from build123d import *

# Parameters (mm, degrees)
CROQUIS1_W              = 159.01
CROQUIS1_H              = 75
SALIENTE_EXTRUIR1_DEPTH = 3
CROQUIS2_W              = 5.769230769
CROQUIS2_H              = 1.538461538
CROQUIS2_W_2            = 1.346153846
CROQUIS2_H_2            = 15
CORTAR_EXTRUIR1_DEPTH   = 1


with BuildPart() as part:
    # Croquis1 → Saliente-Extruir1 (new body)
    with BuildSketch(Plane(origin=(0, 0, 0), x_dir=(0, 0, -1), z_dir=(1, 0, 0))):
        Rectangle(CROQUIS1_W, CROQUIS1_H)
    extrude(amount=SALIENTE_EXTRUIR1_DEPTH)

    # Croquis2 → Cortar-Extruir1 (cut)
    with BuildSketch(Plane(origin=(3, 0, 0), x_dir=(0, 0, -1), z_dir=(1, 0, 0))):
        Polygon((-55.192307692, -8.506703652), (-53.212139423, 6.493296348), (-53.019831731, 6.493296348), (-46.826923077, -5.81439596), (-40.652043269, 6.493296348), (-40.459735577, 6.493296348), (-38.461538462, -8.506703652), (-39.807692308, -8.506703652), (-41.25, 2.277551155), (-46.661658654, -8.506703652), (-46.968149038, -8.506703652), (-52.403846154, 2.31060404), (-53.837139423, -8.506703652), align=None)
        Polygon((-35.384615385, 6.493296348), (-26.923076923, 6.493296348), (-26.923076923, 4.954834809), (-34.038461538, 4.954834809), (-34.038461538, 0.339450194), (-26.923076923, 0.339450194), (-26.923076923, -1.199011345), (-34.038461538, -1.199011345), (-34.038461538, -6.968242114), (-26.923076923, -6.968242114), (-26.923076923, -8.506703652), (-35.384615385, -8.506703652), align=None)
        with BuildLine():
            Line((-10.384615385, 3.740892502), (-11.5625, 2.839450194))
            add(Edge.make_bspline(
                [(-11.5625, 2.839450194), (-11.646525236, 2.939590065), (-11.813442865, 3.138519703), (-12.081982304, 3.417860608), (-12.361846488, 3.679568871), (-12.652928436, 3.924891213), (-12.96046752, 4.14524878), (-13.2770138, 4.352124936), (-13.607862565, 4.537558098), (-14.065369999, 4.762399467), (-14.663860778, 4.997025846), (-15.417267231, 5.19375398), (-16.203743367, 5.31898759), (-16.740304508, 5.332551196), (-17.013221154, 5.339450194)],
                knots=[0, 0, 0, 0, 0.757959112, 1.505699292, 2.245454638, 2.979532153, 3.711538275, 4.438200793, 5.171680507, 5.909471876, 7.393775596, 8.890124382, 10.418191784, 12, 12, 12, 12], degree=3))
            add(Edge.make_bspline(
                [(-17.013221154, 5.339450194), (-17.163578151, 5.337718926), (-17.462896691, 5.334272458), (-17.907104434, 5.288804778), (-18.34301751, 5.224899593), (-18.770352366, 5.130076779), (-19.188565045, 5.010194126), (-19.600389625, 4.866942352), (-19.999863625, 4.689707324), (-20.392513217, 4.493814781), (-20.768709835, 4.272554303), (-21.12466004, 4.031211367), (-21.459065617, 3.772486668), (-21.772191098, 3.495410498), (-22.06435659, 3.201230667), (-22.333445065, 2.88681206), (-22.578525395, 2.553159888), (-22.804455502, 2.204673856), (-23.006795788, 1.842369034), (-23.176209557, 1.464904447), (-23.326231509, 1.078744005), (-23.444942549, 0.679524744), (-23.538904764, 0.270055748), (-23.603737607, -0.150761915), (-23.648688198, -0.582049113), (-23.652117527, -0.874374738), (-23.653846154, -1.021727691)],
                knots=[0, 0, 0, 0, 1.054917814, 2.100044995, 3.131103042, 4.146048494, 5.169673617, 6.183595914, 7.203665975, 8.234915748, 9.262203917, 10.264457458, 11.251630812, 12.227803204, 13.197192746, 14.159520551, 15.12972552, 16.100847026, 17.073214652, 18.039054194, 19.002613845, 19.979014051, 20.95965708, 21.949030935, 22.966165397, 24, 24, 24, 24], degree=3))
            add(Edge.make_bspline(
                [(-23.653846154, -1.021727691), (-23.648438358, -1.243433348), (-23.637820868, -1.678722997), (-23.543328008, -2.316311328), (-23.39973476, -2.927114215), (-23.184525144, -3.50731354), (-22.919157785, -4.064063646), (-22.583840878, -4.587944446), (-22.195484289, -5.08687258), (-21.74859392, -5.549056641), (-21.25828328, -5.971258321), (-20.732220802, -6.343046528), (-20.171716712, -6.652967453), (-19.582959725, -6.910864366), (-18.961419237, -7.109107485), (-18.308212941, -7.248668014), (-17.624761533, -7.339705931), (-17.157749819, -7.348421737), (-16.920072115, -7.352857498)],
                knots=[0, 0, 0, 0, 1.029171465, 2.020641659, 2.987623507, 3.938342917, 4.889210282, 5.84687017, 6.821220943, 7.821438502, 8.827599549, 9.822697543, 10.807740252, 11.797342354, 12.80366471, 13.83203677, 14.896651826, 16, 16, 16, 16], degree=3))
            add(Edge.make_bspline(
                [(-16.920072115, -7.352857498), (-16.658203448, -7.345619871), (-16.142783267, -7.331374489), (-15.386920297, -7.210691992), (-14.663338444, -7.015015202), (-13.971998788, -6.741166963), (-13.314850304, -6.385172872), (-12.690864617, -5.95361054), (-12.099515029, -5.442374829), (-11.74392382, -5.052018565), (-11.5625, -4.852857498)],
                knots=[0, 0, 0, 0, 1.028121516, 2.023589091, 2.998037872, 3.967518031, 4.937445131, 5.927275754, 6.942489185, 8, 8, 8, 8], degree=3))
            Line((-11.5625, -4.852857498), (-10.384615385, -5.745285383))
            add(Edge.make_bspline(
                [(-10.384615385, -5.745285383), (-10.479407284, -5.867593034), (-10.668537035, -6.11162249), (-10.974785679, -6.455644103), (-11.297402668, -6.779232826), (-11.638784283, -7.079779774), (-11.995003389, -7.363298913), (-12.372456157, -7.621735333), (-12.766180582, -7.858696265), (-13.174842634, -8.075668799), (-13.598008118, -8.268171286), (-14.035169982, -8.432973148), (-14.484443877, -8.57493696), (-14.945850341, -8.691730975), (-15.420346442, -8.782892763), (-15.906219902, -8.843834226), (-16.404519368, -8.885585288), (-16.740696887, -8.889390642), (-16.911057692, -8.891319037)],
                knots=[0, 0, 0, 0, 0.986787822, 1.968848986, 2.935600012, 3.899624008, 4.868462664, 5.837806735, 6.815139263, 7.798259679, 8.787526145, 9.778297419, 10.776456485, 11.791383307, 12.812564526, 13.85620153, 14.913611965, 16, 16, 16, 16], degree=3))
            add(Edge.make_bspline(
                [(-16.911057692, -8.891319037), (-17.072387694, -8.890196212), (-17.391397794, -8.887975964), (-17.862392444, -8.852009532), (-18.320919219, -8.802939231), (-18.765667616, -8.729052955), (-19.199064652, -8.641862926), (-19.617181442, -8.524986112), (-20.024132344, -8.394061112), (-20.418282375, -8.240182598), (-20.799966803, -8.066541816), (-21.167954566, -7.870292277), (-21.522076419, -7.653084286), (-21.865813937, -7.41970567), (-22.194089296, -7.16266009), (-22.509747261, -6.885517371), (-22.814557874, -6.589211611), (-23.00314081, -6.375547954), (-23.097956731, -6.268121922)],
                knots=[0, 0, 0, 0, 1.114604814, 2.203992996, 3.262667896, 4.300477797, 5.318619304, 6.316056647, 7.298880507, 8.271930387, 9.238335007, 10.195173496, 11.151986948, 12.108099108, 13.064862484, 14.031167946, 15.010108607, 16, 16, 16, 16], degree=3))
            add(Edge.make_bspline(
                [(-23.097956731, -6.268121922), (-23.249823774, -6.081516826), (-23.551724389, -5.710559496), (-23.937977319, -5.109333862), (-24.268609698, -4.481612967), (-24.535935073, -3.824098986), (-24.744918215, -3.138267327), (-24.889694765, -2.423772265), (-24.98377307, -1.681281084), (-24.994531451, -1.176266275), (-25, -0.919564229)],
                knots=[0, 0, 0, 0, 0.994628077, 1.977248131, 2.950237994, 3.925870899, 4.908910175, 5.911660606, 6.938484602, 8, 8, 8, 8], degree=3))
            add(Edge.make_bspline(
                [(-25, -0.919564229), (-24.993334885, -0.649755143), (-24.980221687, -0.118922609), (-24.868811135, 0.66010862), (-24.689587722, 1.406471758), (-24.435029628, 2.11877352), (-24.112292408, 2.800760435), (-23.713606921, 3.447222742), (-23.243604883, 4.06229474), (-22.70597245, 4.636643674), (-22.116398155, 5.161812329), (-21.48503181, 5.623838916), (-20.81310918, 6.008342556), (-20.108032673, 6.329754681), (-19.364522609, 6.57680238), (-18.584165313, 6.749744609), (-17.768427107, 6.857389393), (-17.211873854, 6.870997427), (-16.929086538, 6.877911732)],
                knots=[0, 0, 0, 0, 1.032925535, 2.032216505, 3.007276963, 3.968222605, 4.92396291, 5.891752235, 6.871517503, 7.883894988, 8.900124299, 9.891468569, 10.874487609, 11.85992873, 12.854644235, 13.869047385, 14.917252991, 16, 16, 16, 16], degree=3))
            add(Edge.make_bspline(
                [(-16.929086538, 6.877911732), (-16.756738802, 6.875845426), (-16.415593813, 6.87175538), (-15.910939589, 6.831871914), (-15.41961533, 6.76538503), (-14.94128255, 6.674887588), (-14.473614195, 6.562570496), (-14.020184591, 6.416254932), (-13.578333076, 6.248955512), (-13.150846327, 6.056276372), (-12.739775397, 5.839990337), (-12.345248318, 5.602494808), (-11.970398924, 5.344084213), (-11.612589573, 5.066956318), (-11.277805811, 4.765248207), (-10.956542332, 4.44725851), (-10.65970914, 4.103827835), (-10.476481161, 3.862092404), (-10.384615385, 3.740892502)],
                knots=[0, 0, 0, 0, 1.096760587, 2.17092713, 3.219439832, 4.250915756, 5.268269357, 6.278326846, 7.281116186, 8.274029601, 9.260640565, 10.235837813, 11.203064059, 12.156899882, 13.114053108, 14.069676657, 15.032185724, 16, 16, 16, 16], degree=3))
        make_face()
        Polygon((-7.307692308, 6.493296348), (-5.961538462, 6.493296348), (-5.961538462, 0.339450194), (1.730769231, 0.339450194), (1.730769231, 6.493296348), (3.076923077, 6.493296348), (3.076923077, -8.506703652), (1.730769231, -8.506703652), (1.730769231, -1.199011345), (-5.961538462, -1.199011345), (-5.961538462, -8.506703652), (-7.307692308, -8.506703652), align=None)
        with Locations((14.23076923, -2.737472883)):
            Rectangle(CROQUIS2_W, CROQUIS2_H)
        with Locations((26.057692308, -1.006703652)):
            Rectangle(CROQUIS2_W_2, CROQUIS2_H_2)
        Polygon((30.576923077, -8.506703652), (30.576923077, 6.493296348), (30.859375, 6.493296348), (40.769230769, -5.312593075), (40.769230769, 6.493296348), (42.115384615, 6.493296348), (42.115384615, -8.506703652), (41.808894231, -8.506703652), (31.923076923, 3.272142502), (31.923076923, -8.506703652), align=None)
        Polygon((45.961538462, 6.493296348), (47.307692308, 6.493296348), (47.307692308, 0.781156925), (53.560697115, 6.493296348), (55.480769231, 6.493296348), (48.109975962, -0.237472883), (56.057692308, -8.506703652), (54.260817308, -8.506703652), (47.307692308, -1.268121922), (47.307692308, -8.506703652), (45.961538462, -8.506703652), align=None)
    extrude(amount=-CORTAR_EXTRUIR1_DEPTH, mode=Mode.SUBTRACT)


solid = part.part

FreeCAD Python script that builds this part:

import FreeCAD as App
import Part
import Sketcher
from FreeCAD import Vector
Q = App.Units.Quantity


def add_polygon(sketch, points):
    """Adds a closed chain of lines whose ends are joined by coincident constraints."""
    first, n = sketch.GeometryCount, len(points)
    for a, b in zip(points, points[1:] + points[:1]):
        sketch.addGeometry(Part.LineSegment(App.Vector(*a, 0), App.Vector(*b, 0)), False)
    for i in range(n):
        sketch.addConstraint(Sketcher.Constraint("Coincident", first + i, 2, first + (i + 1) % n, 1))

doc = App.newDocument("Part")
body = doc.addObject("PartDesign::Body", "Body")

# Sketch on YZ plane
sketch1 = body.newObject("Sketcher::SketchObject", "Sketch")
sketch1.AttachmentSupport = (doc.getObject("YZ_Plane"), [""])
sketch1.MapMode = "FlatFace"
add_polygon(sketch1, [(37.5, 79.505), (-37.5, 79.505), (-37.5, -79.505), (37.5, -79.505)])  # lines 0-3
sketch1.addConstraint(Sketcher.Constraint("Horizontal", 0))
sketch1.addConstraint(Sketcher.Constraint("Vertical", 1))
sketch1.addConstraint(Sketcher.Constraint("Horizontal", 2))
sketch1.addConstraint(Sketcher.Constraint("Vertical", 3))
sketch1.addConstraint(Sketcher.Constraint("Symmetric", 0, 2, 2, 2, -1, 1))
sketch1.addConstraint(Sketcher.Constraint("DistanceX", 0, 2, 0, 1, Q("75 mm")))
sketch1.addConstraint(Sketcher.Constraint("DistanceY", 1, 2, 1, 1, Q("159.01 mm")))
pad1 = body.newObject("PartDesign::Pad", "Pad")
pad1.Profile = sketch1
pad1.Length = 3

# Sketch on YZ plane
sketch2 = body.newObject("Sketcher::SketchObject", "Sketch001")
sketch2.AttachmentSupport = (doc.getObject("YZ_Plane"), [""])
sketch2.MapMode = "FlatFace"
sketch2.AttachmentOffset = App.Placement(Vector(0, 0, 3), App.Rotation())
add_polygon(sketch2, [(6.493296, 53.212139), (-8.506704, 55.192308), (-8.506704, 53.837139), (2.310604, 52.403846), (-8.506704, 46.968149), (-8.506704, 46.661659), (2.277551, 41.25), (-8.506704, 39.807692), (-8.506704, 38.461538), (6.493296, 40.459736), (6.493296, 40.652043), (-5.814396, 46.826923), (6.493296, 53.019832)])  # lines 0-12
add_polygon(sketch2, [(6.493296, 26.923077), (6.493296, 35.384615), (-8.506704, 35.384615), (-8.506704, 26.923077), (-6.968242, 26.923077), (-6.968242, 34.038462), (-1.199011, 34.038462), (-1.199011, 26.923077), (0.33945, 26.923077), (0.33945, 34.038462), (4.954835, 34.038462), (4.954835, 26.923077)])  # lines 13-24
sketch2.addGeometry(Part.LineSegment(Vector(2.83945, 11.5625, 0), Vector(3.740893, 10.384615, 0)), False)  # 25
sketch2.addGeometry(Part.BSplineCurve([Vector(6.877912, 16.929087, 0), Vector(6.875845, 16.756739, 0), Vector(6.871755, 16.415594, 0), Vector(6.831872, 15.91094, 0), Vector(6.765385, 15.419615, 0), Vector(6.674888, 14.941283, 0), Vector(6.56257, 14.473614, 0), Vector(6.416255, 14.020185, 0), Vector(6.248956, 13.578333, 0), Vector(6.056276, 13.150846, 0), Vector(5.83999, 12.739775, 0), Vector(5.602495, 12.345248, 0), Vector(5.344084, 11.970399, 0), Vector(5.066956, 11.61259, 0), Vector(4.765248, 11.277806, 0), Vector(4.447259, 10.956542, 0), Vector(4.103828, 10.659709, 0), Vector(3.862092, 10.476481, 0), Vector(3.740893, 10.384615, 0)], [4, 1, 1, 1, 1, 1, 1, 1, 1, 1, 1, 1, 1, 1, 1, 1, 4], [0, 1.096760587, 2.17092713, 3.219439832, 4.250915756, 5.268269357, 6.278326846, 7.281116186, 8.274029601, 9.260640565, 10.235837813, 11.203064059, 12.156899882, 13.114053108, 14.069676657, 15.032185724, 16], False, 3, [1, 1, 1, 1, 1, 1, 1, 1, 1, 1, 1, 1, 1, 1, 1, 1, 1, 1, 1], False), False)  # 26
sketch2.addGeometry(Part.BSplineCurve([Vector(-0.919564, 25, 0), Vector(-0.649755, 24.993335, 0), Vector(-0.118923, 24.980222, 0), Vector(0.660109, 24.868811, 0), Vector(1.406472, 24.689588, 0), Vector(2.118774, 24.43503, 0), Vector(2.80076, 24.112292, 0), Vector(3.447223, 23.713607, 0), Vector(4.062295, 23.243605, 0), Vector(4.636644, 22.705972, 0), Vector(5.161812, 22.116398, 0), Vector(5.623839, 21.485032, 0), Vector(6.008343, 20.813109, 0), Vector(6.329755, 20.108033, 0), Vector(6.576802, 19.364523, 0), Vector(6.749745, 18.584165, 0), Vector(6.857389, 17.768427, 0), Vector(6.870997, 17.211874, 0), Vector(6.877912, 16.929087, 0)], [4, 1, 1, 1, 1, 1, 1, 1, 1, 1, 1, 1, 1, 1, 1, 1, 4], [0, 1.032925535, 2.032216505, 3.007276963, 3.968222605, 4.92396291, 5.891752235, 6.871517503, 7.883894988, 8.900124299, 9.891468569, 10.874487609, 11.85992873, 12.854644235, 13.869047385, 14.917252991, 16], False, 3, [1, 1, 1, 1, 1, 1, 1, 1, 1, 1, 1, 1, 1, 1, 1, 1, 1, 1, 1], False), False)  # 27
sketch2.addGeometry(Part.BSplineCurve([Vector(-6.268122, 23.097957, 0), Vector(-6.081517, 23.249824, 0), Vector(-5.710559, 23.551724, 0), Vector(-5.109334, 23.937977, 0), Vector(-4.481613, 24.26861, 0), Vector(-3.824099, 24.535935, 0), Vector(-3.138267, 24.744918, 0), Vector(-2.423772, 24.889695, 0), Vector(-1.681281, 24.983773, 0), Vector(-1.176266, 24.994531, 0), Vector(-0.919564, 25, 0)], [4, 1, 1, 1, 1, 1, 1, 1, 4], [0, 0.994628077, 1.977248131, 2.950237994, 3.925870899, 4.908910175, 5.911660606, 6.938484602, 8], False, 3, [1, 1, 1, 1, 1, 1, 1, 1, 1, 1, 1], False), False)  # 28
sketch2.addGeometry(Part.BSplineCurve([Vector(-8.891319, 16.911058, 0), Vector(-8.890196, 17.072388, 0), Vector(-8.887976, 17.391398, 0), Vector(-8.85201, 17.862392, 0), Vector(-8.802939, 18.320919, 0), Vector(-8.729053, 18.765668, 0), Vector(-8.641863, 19.199065, 0), Vector(-8.524986, 19.617181, 0), Vector(-8.394061, 20.024132, 0), Vector(-8.240183, 20.418282, 0), Vector(-8.066542, 20.799967, 0), Vector(-7.870292, 21.167955, 0), Vector(-7.653084, 21.522076, 0), Vector(-7.419706, 21.865814, 0), Vector(-7.16266, 22.194089, 0), Vector(-6.885517, 22.509747, 0), Vector(-6.589212, 22.814558, 0), Vector(-6.375548, 23.003141, 0), Vector(-6.268122, 23.097957, 0)], [4, 1, 1, 1, 1, 1, 1, 1, 1, 1, 1, 1, 1, 1, 1, 1, 4], [0, 1.114604814, 2.203992996, 3.262667896, 4.300477797, 5.318619304, 6.316056647, 7.298880507, 8.271930387, 9.238335007, 10.195173496, 11.151986948, 12.108099108, 13.064862484, 14.031167946, 15.010108607, 16], False, 3, [1, 1, 1, 1, 1, 1, 1, 1, 1, 1, 1, 1, 1, 1, 1, 1, 1, 1, 1], False), False)  # 29
sketch2.addGeometry(Part.BSplineCurve([Vector(-5.745285, 10.384615, 0), Vector(-5.867593, 10.479407, 0), Vector(-6.111622, 10.668537, 0), Vector(-6.455644, 10.974786, 0), Vector(-6.779233, 11.297403, 0), Vector(-7.07978, 11.638784, 0), Vector(-7.363299, 11.995003, 0), Vector(-7.621735, 12.372456, 0), Vector(-7.858696, 12.766181, 0), Vector(-8.075669, 13.174843, 0), Vector(-8.268171, 13.598008, 0), Vector(-8.432973, 14.03517, 0), Vector(-8.574937, 14.484444, 0), Vector(-8.691731, 14.94585, 0), Vector(-8.782893, 15.420346, 0), Vector(-8.843834, 15.90622, 0), Vector(-8.885585, 16.404519, 0), Vector(-8.889391, 16.740697, 0), Vector(-8.891319, 16.911058, 0)], [4, 1, 1, 1, 1, 1, 1, 1, 1, 1, 1, 1, 1, 1, 1, 1, 4], [0, 0.986787822, 1.968848986, 2.935600012, 3.899624008, 4.868462664, 5.837806735, 6.815139263, 7.798259679, 8.787526145, 9.778297419, 10.776456485, 11.791383307, 12.812564526, 13.85620153, 14.913611965, 16], False, 3, [1, 1, 1, 1, 1, 1, 1, 1, 1, 1, 1, 1, 1, 1, 1, 1, 1, 1, 1], False), False)  # 30
sketch2.addGeometry(Part.LineSegment(Vector(-5.745285, 10.384615, 0), Vector(-4.852857, 11.5625, 0)), False)  # 31
sketch2.addGeometry(Part.BSplineCurve([Vector(-7.352857, 16.920072, 0), Vector(-7.34562, 16.658203, 0), Vector(-7.331374, 16.142783, 0), Vector(-7.210692, 15.38692, 0), Vector(-7.015015, 14.663338, 0), Vector(-6.741167, 13.971999, 0), Vector(-6.385173, 13.31485, 0), Vector(-5.953611, 12.690865, 0), Vector(-5.442375, 12.099515, 0), Vector(-5.052019, 11.743924, 0), Vector(-4.852857, 11.5625, 0)], [4, 1, 1, 1, 1, 1, 1, 1, 4], [0, 1.028121516, 2.023589091, 2.998037872, 3.967518031, 4.937445131, 5.927275754, 6.942489185, 8], False, 3, [1, 1, 1, 1, 1, 1, 1, 1, 1, 1, 1], False), False)  # 32
sketch2.addGeometry(Part.BSplineCurve([Vector(-1.021728, 23.653846, 0), Vector(-1.243433, 23.648438, 0), Vector(-1.678723, 23.637821, 0), Vector(-2.316311, 23.543328, 0), Vector(-2.927114, 23.399735, 0), Vector(-3.507314, 23.184525, 0), Vector(-4.064064, 22.919158, 0), Vector(-4.587944, 22.583841, 0), Vector(-5.086873, 22.195484, 0), Vector(-5.549057, 21.748594, 0), Vector(-5.971258, 21.258283, 0), Vector(-6.343047, 20.732221, 0), Vector(-6.652967, 20.171717, 0), Vector(-6.910864, 19.58296, 0), Vector(-7.109107, 18.961419, 0), Vector(-7.248668, 18.308213, 0), Vector(-7.339706, 17.624762, 0), Vector(-7.348422, 17.15775, 0), Vector(-7.352857, 16.920072, 0)], [4, 1, 1, 1, 1, 1, 1, 1, 1, 1, 1, 1, 1, 1, 1, 1, 4], [0, 1.029171465, 2.020641659, 2.987623507, 3.938342917, 4.889210282, 5.84687017, 6.821220943, 7.821438502, 8.827599549, 9.822697543, 10.807740252, 11.797342354, 12.80366471, 13.83203677, 14.896651826, 16], False, 3, [1, 1, 1, 1, 1, 1, 1, 1, 1, 1, 1, 1, 1, 1, 1, 1, 1, 1, 1], False), False)  # 33
sketch2.addGeometry(Part.BSplineCurve([Vector(5.33945, 17.013221, 0), Vector(5.337719, 17.163578, 0), Vector(5.334272, 17.462897, 0), Vector(5.288805, 17.907104, 0), Vector(5.2249, 18.343018, 0), Vector(5.130077, 18.770352, 0), Vector(5.010194, 19.188565, 0), Vector(4.866942, 19.60039, 0), Vector(4.689707, 19.999864, 0), Vector(4.493815, 20.392513, 0), Vector(4.272554, 20.76871, 0), Vector(4.031211, 21.12466, 0), Vector(3.772487, 21.459066, 0), Vector(3.49541, 21.772191, 0), Vector(3.201231, 22.064357, 0), Vector(2.886812, 22.333445, 0), Vector(2.55316, 22.578525, 0), Vector(2.204674, 22.804456, 0), Vector(1.842369, 23.006796, 0), Vector(1.464904, 23.17621, 0), Vector(1.078744, 23.326232, 0), Vector(0.679525, 23.444943, 0), Vector(0.270056, 23.538905, 0), Vector(-0.150762, 23.603738, 0), Vector(-0.582049, 23.648688, 0), Vector(-0.874375, 23.652118, 0), Vector(-1.021728, 23.653846, 0)], [4, 1, 1, 1, 1, 1, 1, 1, 1, 1, 1, 1, 1, 1, 1, 1, 1, 1, 1, 1, 1, 1, 1, 1, 4], [0, 1.054917814, 2.100044995, 3.131103042, 4.146048494, 5.169673617, 6.183595914, 7.203665975, 8.234915748, 9.262203917, 10.264457458, 11.251630812, 12.227803204, 13.197192746, 14.159520551, 15.12972552, 16.100847026, 17.073214652, 18.039054194, 19.002613845, 19.979014051, 20.95965708, 21.949030935, 22.966165397, 24], False, 3, [1, 1, 1, 1, 1, 1, 1, 1, 1, 1, 1, 1, 1, 1, 1, 1, 1, 1, 1, 1, 1, 1, 1, 1, 1, 1, 1], False), False)  # 34
sketch2.addGeometry(Part.BSplineCurve([Vector(2.83945, 11.5625, 0), Vector(2.93959, 11.646525, 0), Vector(3.13852, 11.813443, 0), Vector(3.417861, 12.081982, 0), Vector(3.679569, 12.361846, 0), Vector(3.924891, 12.652928, 0), Vector(4.145249, 12.960468, 0), Vector(4.352125, 13.277014, 0), Vector(4.537558, 13.607863, 0), Vector(4.762399, 14.06537, 0), Vector(4.997026, 14.663861, 0), Vector(5.193754, 15.417267, 0), Vector(5.318988, 16.203743, 0), Vector(5.332551, 16.740305, 0), Vector(5.33945, 17.013221, 0)], [4, 1, 1, 1, 1, 1, 1, 1, 1, 1, 1, 1, 4], [0, 0.757959112, 1.505699292, 2.245454638, 2.979532153, 3.711538275, 4.438200793, 5.171680507, 5.909471876, 7.393775596, 8.890124382, 10.418191784, 12], False, 3, [1, 1, 1, 1, 1, 1, 1, 1, 1, 1, 1, 1, 1, 1, 1], False), False)  # 35
add_polygon(sketch2, [(6.493296, 5.961538), (6.493296, 7.307692), (-8.506704, 7.307692), (-8.506704, 5.961538), (-1.199011, 5.961538), (-1.199011, -1.730769), (-8.506704, -1.730769), (-8.506704, -3.076923), (6.493296, -3.076923), (6.493296, -1.730769), (0.33945, -1.730769), (0.33945, 5.961538)])  # lines 36-47
add_polygon(sketch2, [(-1.968242, -11.346154), (-3.506704, -11.346154), (-3.506704, -17.115385), (-1.968242, -17.115385)])  # lines 48-51
add_polygon(sketch2, [(6.493296, -25.384615), (-8.506704, -25.384615), (-8.506704, -26.730769), (6.493296, -26.730769)])  # lines 52-55
add_polygon(sketch2, [(6.493296, -30.576923), (-8.506704, -30.576923), (-8.506704, -31.923077), (3.272143, -31.923077), (-8.506704, -41.808894), (-8.506704, -42.115385), (6.493296, -42.115385), (6.493296, -40.769231), (-5.312593, -40.769231), (6.493296, -30.859375)])  # lines 56-65
add_polygon(sketch2, [(6.493296, -47.307692), (6.493296, -45.961538), (-8.506704, -45.961538), (-8.506704, -47.307692), (-1.268122, -47.307692), (-8.506704, -54.260817), (-8.506704, -56.057692), (-0.237473, -48.109976), (6.493296, -55.480769), (6.493296, -53.560697), (0.781157, -47.307692)])  # lines 66-76
sketch2.addConstraint(Sketcher.Constraint("Block", 26))
sketch2.addConstraint(Sketcher.Constraint("Block", 27))
sketch2.addConstraint(Sketcher.Constraint("Block", 28))
sketch2.addConstraint(Sketcher.Constraint("Block", 29))
sketch2.addConstraint(Sketcher.Constraint("Block", 30))
sketch2.addConstraint(Sketcher.Constraint("Block", 32))
sketch2.addConstraint(Sketcher.Constraint("Block", 33))
sketch2.addConstraint(Sketcher.Constraint("Block", 34))
sketch2.addConstraint(Sketcher.Constraint("Block", 35))
sketch2.addConstraint(Sketcher.Constraint("Coincident", 25, 2, 26, 2))
sketch2.addConstraint(Sketcher.Constraint("Coincident", 30, 1, 31, 1))
sketch2.addConstraint(Sketcher.Constraint("Coincident", 31, 2, 32, 2))
sketch2.addConstraint(Sketcher.Constraint("Coincident", 35, 1, 25, 1))
sketch2.addConstraint(Sketcher.Constraint("Vertical", 1))
sketch2.addConstraint(Sketcher.Constraint("Vertical", 4))
sketch2.addConstraint(Sketcher.Constraint("Vertical", 7))
sketch2.addConstraint(Sketcher.Constraint("Vertical", 9))
sketch2.addConstraint(Sketcher.Constraint("Vertical", 12))
sketch2.addConstraint(Sketcher.Constraint("Vertical", 13))
sketch2.addConstraint(Sketcher.Constraint("Horizontal", 14))
sketch2.addConstraint(Sketcher.Constraint("Vertical", 15))
sketch2.addConstraint(Sketcher.Constraint("Horizontal", 16))
sketch2.addConstraint(Sketcher.Constraint("Vertical", 17))
sketch2.addConstraint(Sketcher.Constraint("Horizontal", 18))
sketch2.addConstraint(Sketcher.Constraint("Vertical", 19))
sketch2.addConstraint(Sketcher.Constraint("Horizontal", 20))
sketch2.addConstraint(Sketcher.Constraint("Vertical", 21))
sketch2.addConstraint(Sketcher.Constraint("Horizontal", 22))
sketch2.addConstraint(Sketcher.Constraint("Vertical", 23))
sketch2.addConstraint(Sketcher.Constraint("Horizontal", 24))
sketch2.addConstraint(Sketcher.Constraint("Vertical", 36))
sketch2.addConstraint(Sketcher.Constraint("Horizontal", 37))
sketch2.addConstraint(Sketcher.Constraint("Vertical", 38))
sketch2.addConstraint(Sketcher.Constraint("Horizontal", 39))
sketch2.addConstraint(Sketcher.Constraint("Vertical", 40))
sketch2.addConstraint(Sketcher.Constraint("Horizontal", 41))
sketch2.addConstraint(Sketcher.Constraint("Vertical", 42))
sketch2.addConstraint(Sketcher.Constraint("Horizontal", 43))
sketch2.addConstraint(Sketcher.Constraint("Vertical", 44))
sketch2.addConstraint(Sketcher.Constraint("Horizontal", 45))
sketch2.addConstraint(Sketcher.Constraint("Vertical", 46))
sketch2.addConstraint(Sketcher.Constraint("Horizontal", 47))
sketch2.addConstraint(Sketcher.Constraint("Horizontal", 48))
sketch2.addConstraint(Sketcher.Constraint("Vertical", 49))
sketch2.addConstraint(Sketcher.Constraint("Horizontal", 50))
sketch2.addConstraint(Sketcher.Constraint("Vertical", 51))
sketch2.addConstraint(Sketcher.Constraint("Horizontal", 52))
sketch2.addConstraint(Sketcher.Constraint("Vertical", 53))
sketch2.addConstraint(Sketcher.Constraint("Horizontal", 54))
sketch2.addConstraint(Sketcher.Constraint("Vertical", 55))
sketch2.addConstraint(Sketcher.Constraint("Horizontal", 56))
sketch2.addConstraint(Sketcher.Constraint("Vertical", 57))
sketch2.addConstraint(Sketcher.Constraint("Horizontal", 58))
sketch2.addConstraint(Sketcher.Constraint("Vertical", 60))
sketch2.addConstraint(Sketcher.Constraint("Horizontal", 61))
sketch2.addConstraint(Sketcher.Constraint("Vertical", 62))
sketch2.addConstraint(Sketcher.Constraint("Horizontal", 63))
sketch2.addConstraint(Sketcher.Constraint("Vertical", 65))
sketch2.addConstraint(Sketcher.Constraint("Vertical", 66))
sketch2.addConstraint(Sketcher.Constraint("Horizontal", 67))
sketch2.addConstraint(Sketcher.Constraint("Vertical", 68))
sketch2.addConstraint(Sketcher.Constraint("Horizontal", 69))
sketch2.addConstraint(Sketcher.Constraint("Vertical", 71))
sketch2.addConstraint(Sketcher.Constraint("Vertical", 74))
sketch2.addConstraint(Sketcher.Constraint("Horizontal", 76))
sketch2.addConstraint(Sketcher.Constraint("Horizontal", 16, 2, 19, 2))
sketch2.addConstraint(Sketcher.Constraint("Horizontal", 18, 2, 21, 2))
sketch2.addConstraint(Sketcher.Constraint("Horizontal", 20, 2, 23, 2))
sketch2.addConstraint(Sketcher.Constraint("Horizontal", 41, 2, 44, 2))
sketch2.addConstraint(Sketcher.Constraint("Horizontal", 39, 2, 46, 2))
sketch2.addConstraint(Sketcher.Constraint("Horizontal", 69, 2, 75, 2))
sketch2.addConstraint(Sketcher.Constraint("Vertical", 1, 2, 3, 2))
sketch2.addConstraint(Sketcher.Constraint("Vertical", 4, 2, 6, 2))
sketch2.addConstraint(Sketcher.Constraint("Vertical", 9, 2, 11, 2))
sketch2.addConstraint(Sketcher.Constraint("Vertical", 12, 2, 13, 2))
sketch2.addConstraint(Sketcher.Constraint("Vertical", 7, 2, 14, 2))
sketch2.addConstraint(Sketcher.Constraint("Vertical", 24, 2, 36, 2))
sketch2.addConstraint(Sketcher.Constraint("Vertical", 15, 2, 37, 2))
sketch2.addConstraint(Sketcher.Constraint("Vertical", 19, 2, 39, 2))
sketch2.addConstraint(Sketcher.Constraint("Vertical", 38, 2, 41, 2))
sketch2.addConstraint(Sketcher.Constraint("Vertical", 36, 2, 43, 2))
sketch2.addConstraint(Sketcher.Constraint("Vertical", 21, 2, 45, 2))
sketch2.addConstraint(Sketcher.Constraint("Vertical", 42, 2, 52, 2))
sketch2.addConstraint(Sketcher.Constraint("Vertical", 47, 2, 54, 2))
sketch2.addConstraint(Sketcher.Constraint("Vertical", 53, 2, 56, 2))
sketch2.addConstraint(Sketcher.Constraint("Vertical", 57, 2, 59, 2))
sketch2.addConstraint(Sketcher.Constraint("Vertical", 55, 2, 61, 2))
sketch2.addConstraint(Sketcher.Constraint("Vertical", 62, 2, 64, 2))
sketch2.addConstraint(Sketcher.Constraint("Vertical", 65, 2, 66, 2))
sketch2.addConstraint(Sketcher.Constraint("Vertical", 60, 2, 67, 2))
sketch2.addConstraint(Sketcher.Constraint("Vertical", 68, 2, 70, 2))
sketch2.addConstraint(Sketcher.Constraint("Vertical", 66, 2, 73, 2))
sketch2.addConstraint(Sketcher.Constraint("Equal", 16, 20))
sketch2.addConstraint(Sketcher.Constraint("Equal", 20, 24))
sketch2.addConstraint(Sketcher.Constraint("Equal", 24, 48))
sketch2.addConstraint(Sketcher.Constraint("Equal", 9, 12))
sketch2.addConstraint(Sketcher.Constraint("Equal", 7, 36))
sketch2.addConstraint(Sketcher.Constraint("Equal", 38, 42))
sketch2.addConstraint(Sketcher.Constraint("Equal", 18, 49))
sketch2.addConstraint(Sketcher.Constraint("Equal", 44, 53))
sketch2.addConstraint(Sketcher.Constraint("Equal", 55, 57))
sketch2.addConstraint(Sketcher.Constraint("Equal", 4, 60))
sketch2.addConstraint(Sketcher.Constraint("Equal", 57, 62))
sketch2.addConstraint(Sketcher.Constraint("Equal", 62, 66))
sketch2.addConstraint(Sketcher.Constraint("DistanceX", 14, 2, 14, 1, Q("15 mm")))
sketch2.addConstraint(Sketcher.Constraint("DistanceY", -1, 1, 5, 2, Q("41.25 mm")))
sketch2.addConstraint(Sketcher.Constraint("Distance", 59, Q("15.377601 mm")))
sketch2.addConstraint(Sketcher.Constraint("DistanceX", 16, 1, 16, 2, Q("1.538462 mm")))
sketch2.addConstraint(Sketcher.Constraint("DistanceX", 18, 1, 18, 2, Q("5.769231 mm")))
sketch2.addConstraint(Sketcher.Constraint("DistanceX", 63, 2, 63, 1, Q("11.805889 mm")))
sketch2.addConstraint(Sketcher.Constraint("DistanceX", 69, 1, 69, 2, Q("7.238582 mm")))
sketch2.addConstraint(Sketcher.Constraint("DistanceX", 76, 1, 76, 2, Q("5.712139 mm")))
sketch2.addConstraint(Sketcher.Constraint("DistanceY", 1, 2, 1, 1, Q("1.355168 mm")))
sketch2.addConstraint(Sketcher.Constraint("DistanceY", 4, 2, 4, 1, Q("0.30649 mm")))
sketch2.addConstraint(Sketcher.Constraint("DistanceY", 13, 1, 13, 2, Q("8.461538 mm")))
sketch2.addConstraint(Sketcher.Constraint("DistanceY", 65, 1, 65, 2, Q("0.282452 mm")))
sketch2.addConstraint(Sketcher.Constraint("Distance", 2, Q("10.91185 mm")))
sketch2.addConstraint(Sketcher.Constraint("Distance", 5, Q("12.065911 mm")))
sketch2.addConstraint(Sketcher.Constraint("Distance", 11, Q("13.777932 mm")))
sketch2.addConstraint(Sketcher.Constraint("Distance", 64, Q("15.413769 mm")))
sketch2.addConstraint(Sketcher.Constraint("Distance", 70, Q("10.037082 mm")))
sketch2.addConstraint(Sketcher.Constraint("DistanceY", 7, 2, 7, 1, Q("1.346154 mm")))
sketch2.addConstraint(Sketcher.Constraint("DistanceY", 9, 1, 9, 2, Q("0.192308 mm")))
sketch2.addConstraint(Sketcher.Constraint("DistanceY", 17, 1, 17, 2, Q("7.115385 mm")))
sketch2.addConstraint(Sketcher.Constraint("DistanceY", 40, 2, 40, 1, Q("7.692308 mm")))
sketch2.addConstraint(Sketcher.Constraint("DistanceY", 71, 2, 71, 1, Q("1.796875 mm")))
sketch2.addConstraint(Sketcher.Constraint("DistanceY", 74, 1, 74, 2, Q("1.920072 mm")))
sketch2.addConstraint(Sketcher.Constraint("DistanceY", -1, 1, 1, 2, Q("53.837139 mm")))
sketch2.addConstraint(Sketcher.Constraint("DistanceY", -1, 1, 3, 2, Q("46.968149 mm")))
sketch2.addConstraint(Sketcher.Constraint("DistanceX", -1, 1, 5, 2, Q("2.277551 mm")))
sketch2.addConstraint(Sketcher.Constraint("DistanceY", -1, 1, 7, 2, Q("38.461538 mm")))
sketch2.addConstraint(Sketcher.Constraint("DistanceY", -1, 1, 11, 2, Q("53.019832 mm")))
sketch2.addConstraint(Sketcher.Constraint("DistanceY", -1, 1, 17, 2, Q("34.038462 mm")))
sketch2.addConstraint(Sketcher.Constraint("DistanceY", -1, 1, 38, 2, Q("5.961538 mm")))
sketch2.addConstraint(Sketcher.Constraint("DistanceY", 53, 2, -1, 1, Q("26.730769 mm")))
sketch2.addConstraint(Sketcher.Constraint("DistanceY", 62, 2, -1, 1, Q("40.769231 mm")))
sketch2.addConstraint(Sketcher.Constraint("DistanceY", 66, 2, -1, 1, Q("45.961538 mm")))
sketch2.addConstraint(Sketcher.Constraint("DistanceY", 73, 2, -1, 1, Q("55.480769 mm")))
sketch2.addConstraint(Sketcher.Constraint("Distance", 3, Q("12.106236 mm")))
sketch2.addConstraint(Sketcher.Constraint("Distance", 8, Q("15.132508 mm")))
sketch2.addConstraint(Sketcher.Constraint("Distance", 10, Q("13.769838 mm")))
sketch2.addConstraint(Sketcher.Constraint("Distance", 72, Q("11.469367 mm")))
sketch2.addConstraint(Sketcher.Constraint("Distance", 73, Q("9.981575 mm")))
sketch2.addConstraint(Sketcher.Constraint("DistanceX", 48, 2, -1, 1, Q("3.506704 mm")))
sketch2.addConstraint(Sketcher.Constraint("DistanceY", 48, 2, -1, 1, Q("11.346154 mm")))
pocket1 = body.newObject("PartDesign::Pocket", "Pocket")
pocket1.Profile = sketch2
pocket1.Length = 1

doc.recompute()
